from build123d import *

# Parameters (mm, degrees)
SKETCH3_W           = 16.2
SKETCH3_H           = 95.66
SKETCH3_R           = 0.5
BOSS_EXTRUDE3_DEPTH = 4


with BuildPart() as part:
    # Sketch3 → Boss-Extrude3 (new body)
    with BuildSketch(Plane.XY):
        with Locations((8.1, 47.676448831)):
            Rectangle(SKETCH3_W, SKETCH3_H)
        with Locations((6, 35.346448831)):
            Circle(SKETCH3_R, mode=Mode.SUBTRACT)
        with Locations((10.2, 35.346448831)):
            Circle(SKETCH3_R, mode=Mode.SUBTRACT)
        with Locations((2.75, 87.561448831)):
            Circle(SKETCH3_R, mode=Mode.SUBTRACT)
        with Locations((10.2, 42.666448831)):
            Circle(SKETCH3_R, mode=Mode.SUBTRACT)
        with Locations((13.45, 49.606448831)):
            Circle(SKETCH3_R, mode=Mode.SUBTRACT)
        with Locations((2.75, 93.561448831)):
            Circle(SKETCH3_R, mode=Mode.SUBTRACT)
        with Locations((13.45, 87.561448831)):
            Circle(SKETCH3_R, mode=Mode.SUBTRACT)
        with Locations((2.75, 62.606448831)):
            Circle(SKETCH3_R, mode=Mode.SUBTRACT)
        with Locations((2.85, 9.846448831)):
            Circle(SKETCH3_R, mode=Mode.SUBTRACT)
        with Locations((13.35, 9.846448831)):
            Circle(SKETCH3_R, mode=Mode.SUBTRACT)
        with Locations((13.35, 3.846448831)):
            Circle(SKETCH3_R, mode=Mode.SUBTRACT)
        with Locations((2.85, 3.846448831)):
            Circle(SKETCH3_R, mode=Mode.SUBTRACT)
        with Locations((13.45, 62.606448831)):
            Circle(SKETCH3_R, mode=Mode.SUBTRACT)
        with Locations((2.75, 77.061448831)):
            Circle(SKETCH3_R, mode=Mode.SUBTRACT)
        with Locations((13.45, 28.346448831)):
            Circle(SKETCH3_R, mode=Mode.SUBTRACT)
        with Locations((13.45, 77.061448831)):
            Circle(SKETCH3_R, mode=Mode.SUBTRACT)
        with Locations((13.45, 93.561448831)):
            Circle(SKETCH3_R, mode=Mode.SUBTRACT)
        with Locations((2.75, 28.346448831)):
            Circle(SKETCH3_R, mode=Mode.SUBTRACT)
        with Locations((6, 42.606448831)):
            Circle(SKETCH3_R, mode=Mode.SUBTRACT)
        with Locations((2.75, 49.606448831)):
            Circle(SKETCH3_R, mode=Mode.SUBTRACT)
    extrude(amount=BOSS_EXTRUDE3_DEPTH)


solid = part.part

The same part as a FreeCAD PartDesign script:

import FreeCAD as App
import Part
import Sketcher

doc = App.newDocument("Part")
params = doc.addObject("Spreadsheet::Sheet", "Params")
for row, (alias, value) in enumerate([
    ("sketch1_diameter", "1 mm"),
    ("sketch1_width", "16.2 mm"),
    ("sketch1_height", "95.66 mm"),
    ("pad1_length", "4 mm"),
], start=1):
    params.set(f"A{row}", alias)
    params.set(f"B{row}", "=" + value)
    params.setAlias(f"B{row}", alias)

body = doc.addObject("PartDesign::Body", "Body")

sketch1 = doc.addObject("Sketcher::SketchObject", "Sketch")
body.addObject(sketch1)
sketch1.AttachmentSupport = (doc.XY_Plane, [""])
sketch1.MapMode = "FlatFace"
sketch1.addGeometry(Part.LineSegment(App.Vector(0, 95.5, 0), App.Vector(0, -0.2, 0)), False)
sketch1.addGeometry(Part.LineSegment(App.Vector(0, -0.2, 0), App.Vector(16.2, -0.2, 0)), False)
sketch1.addGeometry(Part.LineSegment(App.Vector(16.2, -0.2, 0), App.Vector(16.2, 95.5, 0)), False)
sketch1.addGeometry(Part.LineSegment(App.Vector(16.2, 95.5, 0), App.Vector(0, 95.5, 0)), False)
sketch1.addGeometry(Part.Circle(App.Vector(2.9, 3.8, 0), App.Vector(0, 0, 1), 0.5), False)
sketch1.addGeometry(Part.Circle(App.Vector(2.9, 9.8, 0), App.Vector(0, 0, 1), 0.5), False)
sketch1.addGeometry(Part.Circle(App.Vector(2.8, 28.3, 0), App.Vector(0, 0, 1), 0.5), False)
sketch1.addGeometry(Part.Circle(App.Vector(6, 35.3, 0), App.Vector(0, 0, 1), 0.5), False)
sketch1.addGeometry(Part.Circle(App.Vector(6, 42.6, 0), App.Vector(0, 0, 1), 0.5), False)
sketch1.addGeometry(Part.Circle(App.Vector(13.3, 3.8, 0), App.Vector(0, 0, 1), 0.5), False)
sketch1.addGeometry(Part.Circle(App.Vector(13.3, 9.8, 0), App.Vector(0, 0, 1), 0.5), False)
sketch1.addGeometry(Part.Circle(App.Vector(10.2, 35.3, 0), App.Vector(0, 0, 1), 0.5), False)
sketch1.addGeometry(Part.Circle(App.Vector(10.2, 42.7, 0), App.Vector(0, 0, 1), 0.5), False)
sketch1.addGeometry(Part.Circle(App.Vector(13.4, 28.3, 0), App.Vector(0, 0, 1), 0.5), False)
sketch1.addGeometry(Part.Circle(App.Vector(2.8, 49.6, 0), App.Vector(0, 0, 1), 0.5), False)
sketch1.addGeometry(Part.Circle(App.Vector(2.8, 62.6, 0), App.Vector(0, 0, 1), 0.5), False)
sketch1.addGeometry(Part.Circle(App.Vector(2.8, 77.1, 0), App.Vector(0, 0, 1), 0.5), False)
sketch1.addGeometry(Part.Circle(App.Vector(2.8, 87.6, 0), App.Vector(0, 0, 1), 0.5), False)
sketch1.addGeometry(Part.Circle(App.Vector(2.8, 93.6, 0), App.Vector(0, 0, 1), 0.5), False)
sketch1.addGeometry(Part.Circle(App.Vector(13.4, 49.6, 0), App.Vector(0, 0, 1), 0.5), False)
sketch1.addGeometry(Part.Circle(App.Vector(13.4, 62.6, 0), App.Vector(0, 0, 1), 0.5), False)
sketch1.addGeometry(Part.Circle(App.Vector(13.4, 77.1, 0), App.Vector(0, 0, 1), 0.5), False)
sketch1.addGeometry(Part.Circle(App.Vector(13.4, 87.6, 0), App.Vector(0, 0, 1), 0.5), False)
sketch1.addGeometry(Part.Circle(App.Vector(13.4, 93.6, 0), App.Vector(0, 0, 1), 0.5), False)
sketch1.addConstraint(Sketcher.Constraint("Coincident", 0, 2, 1, 1))
sketch1.addConstraint(Sketcher.Constraint("Coincident", 1, 2, 2, 1))
sketch1.addConstraint(Sketcher.Constraint("Coincident", 2, 2, 3, 1))
sketch1.addConstraint(Sketcher.Constraint("Coincident", 3, 2, 0, 1))
sketch1.addConstraint(Sketcher.Constraint("Vertical", 0))
sketch1.addConstraint(Sketcher.Constraint("Horizontal", 1))
sketch1.addConstraint(Sketcher.Constraint("Vertical", 2))
sketch1.addConstraint(Sketcher.Constraint("Horizontal", 3))
sketch1.addConstraint(Sketcher.Constraint("Equal", 4, 5))
sketch1.addConstraint(Sketcher.Constraint("Equal", 5, 6))
sketch1.addConstraint(Sketcher.Constraint("Equal", 6, 7))
sketch1.addConstraint(Sketcher.Constraint("Equal", 7, 8))
sketch1.addConstraint(Sketcher.Constraint("Equal", 8, 9))
sketch1.addConstraint(Sketcher.Constraint("Equal", 9, 10))
sketch1.addConstraint(Sketcher.Constraint("Equal", 10, 11))
sketch1.addConstraint(Sketcher.Constraint("Equal", 11, 12))
sketch1.addConstraint(Sketcher.Constraint("Equal", 12, 13))
sketch1.addConstraint(Sketcher.Constraint("Equal", 13, 14))
sketch1.addConstraint(Sketcher.Constraint("Equal", 14, 15))
sketch1.addConstraint(Sketcher.Constraint("Equal", 15, 16))
sketch1.addConstraint(Sketcher.Constraint("Equal", 16, 17))
sketch1.addConstraint(Sketcher.Constraint("Equal", 17, 18))
sketch1.addConstraint(Sketcher.Constraint("Equal", 18, 19))
sketch1.addConstraint(Sketcher.Constraint("Equal", 19, 20))
sketch1.addConstraint(Sketcher.Constraint("Equal", 20, 21))
sketch1.addConstraint(Sketcher.Constraint("Equal", 21, 22))
sketch1.addConstraint(Sketcher.Constraint("Equal", 22, 23))
sketch1.addConstraint(Sketcher.Constraint("PointOnObject", 0, 2, -2))
sketch1.addConstraint(Sketcher.Constraint("Horizontal", 4, 3, 9, 3))
sketch1.addConstraint(Sketcher.Constraint("Horizontal", 5, 3, 10, 3))
sketch1.addConstraint(Sketcher.Constraint("Horizontal", 7, 3, 11, 3))
sketch1.addConstraint(Sketcher.Constraint("Horizontal", 6, 3, 13, 3))
sketch1.addConstraint(Sketcher.Constraint("Horizontal", 14, 3, 19, 3))
sketch1.addConstraint(Sketcher.Constraint("Horizontal", 15, 3, 20, 3))
sketch1.addConstraint(Sketcher.Constraint("Horizontal", 16, 3, 21, 3))
sketch1.addConstraint(Sketcher.Constraint("Horizontal", 17, 3, 22, 3))
sketch1.addConstraint(Sketcher.Constraint("Horizontal", 18, 3, 23, 3))
sketch1.addConstraint(Sketcher.Constraint("Vertical", 4, 3, 5, 3))
sketch1.addConstraint(Sketcher.Constraint("Vertical", 7, 3, 8, 3))
sketch1.addConstraint(Sketcher.Constraint("Vertical", 9, 3, 10, 3))
sketch1.addConstraint(Sketcher.Constraint("Vertical", 11, 3, 12, 3))
sketch1.addConstraint(Sketcher.Constraint("Vertical", 6, 3, 14, 3))
sketch1.addConstraint(Sketcher.Constraint("Vertical", 14, 3, 15, 3))
sketch1.addConstraint(Sketcher.Constraint("Vertical", 15, 3, 16, 3))
sketch1.addConstraint(Sketcher.Constraint("Vertical", 16, 3, 17, 3))
sketch1.addConstraint(Sketcher.Constraint("Vertical", 17, 3, 18, 3))
sketch1.addConstraint(Sketcher.Constraint("Vertical", 13, 3, 19, 3))
sketch1.addConstraint(Sketcher.Constraint("Vertical", 19, 3, 20, 3))
sketch1.addConstraint(Sketcher.Constraint("Vertical", 20, 3, 21, 3))
sketch1.addConstraint(Sketcher.Constraint("Vertical", 21, 3, 22, 3))
sketch1.addConstraint(Sketcher.Constraint("Vertical", 22, 3, 23, 3))
sketch1.addConstraint(Sketcher.Constraint("Diameter", 4, 1.0))
sketch1.addConstraint(Sketcher.Constraint("DistanceX", 1, 1, 1, 2, 16.2))
sketch1.addConstraint(Sketcher.Constraint("DistanceX", -1, 1, 7, 3, 6.0))
sketch1.addConstraint(Sketcher.Constraint("DistanceY", 4, 3, 5, 3, 6.0))
sketch1.addConstraint(Sketcher.Constraint("DistanceY", 6, 3, 7, 3, 7.0))
sketch1.addConstraint(Sketcher.Constraint("DistanceY", 8, 3, 14, 3, 7.0))
sketch1.addConstraint(Sketcher.Constraint("DistanceY", 14, 3, 15, 3, 13.0))
sketch1.addConstraint(Sketcher.Constraint("DistanceY", 17, 3, 18, 3, 6.0))
sketch1.addConstraint(Sketcher.Constraint("DistanceY", 0, 2, 4, 3, 4.0))
sketch1.addConstraint(Sketcher.Constraint("DistanceY", 0, 2, 0, 1, 95.66))
sketch1.addConstraint(Sketcher.Constraint("DistanceX", -1, 1, 11, 3, 10.2))
sketch1.addConstraint(Sketcher.Constraint("DistanceX", 6, 3, 5, 3, 0.1))
sketch1.addConstraint(Sketcher.Constraint("DistanceY", 5, 3, 6, 3, 18.5))
sketch1.addConstraint(Sketcher.Constraint("DistanceX", 4, 3, 9, 3, 10.5))
sketch1.addConstraint(Sketcher.Constraint("DistanceX", 6, 3, 13, 3, 10.7))
sketch1.addConstraint(Sketcher.Constraint("DistanceY", 16, 3, 17, 3, 10.5))
sketch1.addConstraint(Sketcher.Constraint("DistanceX", -1, 1, 4, 3, 2.85))
sketch1.addConstraint(Sketcher.Constraint("DistanceY", 7, 3, 8, 3, 7.26))
sketch1.addConstraint(Sketcher.Constraint("DistanceY", 8, 3, 12, 3, 0.06))
sketch1.addConstraint(Sketcher.Constraint("DistanceY", 15, 3, 16, 3, 14.455))
sketch1.addConstraint(Sketcher.Constraint("DistanceY", -1, 1, 4, 3, 3.846449))
sketch1.setExpression("Constraints[51]", "Params.sketch1_diameter")
sketch1.setExpression("Constraints[52]", "Params.sketch1_width")
sketch1.setExpression("Constraints[60]", "Params.sketch1_height")
pad1 = doc.addObject("PartDesign::Pad", "Pad")
body.addObject(pad1)
pad1.Profile = sketch1
pad1.setExpression("Length", "Params.pad1_length")

doc.recompute()
